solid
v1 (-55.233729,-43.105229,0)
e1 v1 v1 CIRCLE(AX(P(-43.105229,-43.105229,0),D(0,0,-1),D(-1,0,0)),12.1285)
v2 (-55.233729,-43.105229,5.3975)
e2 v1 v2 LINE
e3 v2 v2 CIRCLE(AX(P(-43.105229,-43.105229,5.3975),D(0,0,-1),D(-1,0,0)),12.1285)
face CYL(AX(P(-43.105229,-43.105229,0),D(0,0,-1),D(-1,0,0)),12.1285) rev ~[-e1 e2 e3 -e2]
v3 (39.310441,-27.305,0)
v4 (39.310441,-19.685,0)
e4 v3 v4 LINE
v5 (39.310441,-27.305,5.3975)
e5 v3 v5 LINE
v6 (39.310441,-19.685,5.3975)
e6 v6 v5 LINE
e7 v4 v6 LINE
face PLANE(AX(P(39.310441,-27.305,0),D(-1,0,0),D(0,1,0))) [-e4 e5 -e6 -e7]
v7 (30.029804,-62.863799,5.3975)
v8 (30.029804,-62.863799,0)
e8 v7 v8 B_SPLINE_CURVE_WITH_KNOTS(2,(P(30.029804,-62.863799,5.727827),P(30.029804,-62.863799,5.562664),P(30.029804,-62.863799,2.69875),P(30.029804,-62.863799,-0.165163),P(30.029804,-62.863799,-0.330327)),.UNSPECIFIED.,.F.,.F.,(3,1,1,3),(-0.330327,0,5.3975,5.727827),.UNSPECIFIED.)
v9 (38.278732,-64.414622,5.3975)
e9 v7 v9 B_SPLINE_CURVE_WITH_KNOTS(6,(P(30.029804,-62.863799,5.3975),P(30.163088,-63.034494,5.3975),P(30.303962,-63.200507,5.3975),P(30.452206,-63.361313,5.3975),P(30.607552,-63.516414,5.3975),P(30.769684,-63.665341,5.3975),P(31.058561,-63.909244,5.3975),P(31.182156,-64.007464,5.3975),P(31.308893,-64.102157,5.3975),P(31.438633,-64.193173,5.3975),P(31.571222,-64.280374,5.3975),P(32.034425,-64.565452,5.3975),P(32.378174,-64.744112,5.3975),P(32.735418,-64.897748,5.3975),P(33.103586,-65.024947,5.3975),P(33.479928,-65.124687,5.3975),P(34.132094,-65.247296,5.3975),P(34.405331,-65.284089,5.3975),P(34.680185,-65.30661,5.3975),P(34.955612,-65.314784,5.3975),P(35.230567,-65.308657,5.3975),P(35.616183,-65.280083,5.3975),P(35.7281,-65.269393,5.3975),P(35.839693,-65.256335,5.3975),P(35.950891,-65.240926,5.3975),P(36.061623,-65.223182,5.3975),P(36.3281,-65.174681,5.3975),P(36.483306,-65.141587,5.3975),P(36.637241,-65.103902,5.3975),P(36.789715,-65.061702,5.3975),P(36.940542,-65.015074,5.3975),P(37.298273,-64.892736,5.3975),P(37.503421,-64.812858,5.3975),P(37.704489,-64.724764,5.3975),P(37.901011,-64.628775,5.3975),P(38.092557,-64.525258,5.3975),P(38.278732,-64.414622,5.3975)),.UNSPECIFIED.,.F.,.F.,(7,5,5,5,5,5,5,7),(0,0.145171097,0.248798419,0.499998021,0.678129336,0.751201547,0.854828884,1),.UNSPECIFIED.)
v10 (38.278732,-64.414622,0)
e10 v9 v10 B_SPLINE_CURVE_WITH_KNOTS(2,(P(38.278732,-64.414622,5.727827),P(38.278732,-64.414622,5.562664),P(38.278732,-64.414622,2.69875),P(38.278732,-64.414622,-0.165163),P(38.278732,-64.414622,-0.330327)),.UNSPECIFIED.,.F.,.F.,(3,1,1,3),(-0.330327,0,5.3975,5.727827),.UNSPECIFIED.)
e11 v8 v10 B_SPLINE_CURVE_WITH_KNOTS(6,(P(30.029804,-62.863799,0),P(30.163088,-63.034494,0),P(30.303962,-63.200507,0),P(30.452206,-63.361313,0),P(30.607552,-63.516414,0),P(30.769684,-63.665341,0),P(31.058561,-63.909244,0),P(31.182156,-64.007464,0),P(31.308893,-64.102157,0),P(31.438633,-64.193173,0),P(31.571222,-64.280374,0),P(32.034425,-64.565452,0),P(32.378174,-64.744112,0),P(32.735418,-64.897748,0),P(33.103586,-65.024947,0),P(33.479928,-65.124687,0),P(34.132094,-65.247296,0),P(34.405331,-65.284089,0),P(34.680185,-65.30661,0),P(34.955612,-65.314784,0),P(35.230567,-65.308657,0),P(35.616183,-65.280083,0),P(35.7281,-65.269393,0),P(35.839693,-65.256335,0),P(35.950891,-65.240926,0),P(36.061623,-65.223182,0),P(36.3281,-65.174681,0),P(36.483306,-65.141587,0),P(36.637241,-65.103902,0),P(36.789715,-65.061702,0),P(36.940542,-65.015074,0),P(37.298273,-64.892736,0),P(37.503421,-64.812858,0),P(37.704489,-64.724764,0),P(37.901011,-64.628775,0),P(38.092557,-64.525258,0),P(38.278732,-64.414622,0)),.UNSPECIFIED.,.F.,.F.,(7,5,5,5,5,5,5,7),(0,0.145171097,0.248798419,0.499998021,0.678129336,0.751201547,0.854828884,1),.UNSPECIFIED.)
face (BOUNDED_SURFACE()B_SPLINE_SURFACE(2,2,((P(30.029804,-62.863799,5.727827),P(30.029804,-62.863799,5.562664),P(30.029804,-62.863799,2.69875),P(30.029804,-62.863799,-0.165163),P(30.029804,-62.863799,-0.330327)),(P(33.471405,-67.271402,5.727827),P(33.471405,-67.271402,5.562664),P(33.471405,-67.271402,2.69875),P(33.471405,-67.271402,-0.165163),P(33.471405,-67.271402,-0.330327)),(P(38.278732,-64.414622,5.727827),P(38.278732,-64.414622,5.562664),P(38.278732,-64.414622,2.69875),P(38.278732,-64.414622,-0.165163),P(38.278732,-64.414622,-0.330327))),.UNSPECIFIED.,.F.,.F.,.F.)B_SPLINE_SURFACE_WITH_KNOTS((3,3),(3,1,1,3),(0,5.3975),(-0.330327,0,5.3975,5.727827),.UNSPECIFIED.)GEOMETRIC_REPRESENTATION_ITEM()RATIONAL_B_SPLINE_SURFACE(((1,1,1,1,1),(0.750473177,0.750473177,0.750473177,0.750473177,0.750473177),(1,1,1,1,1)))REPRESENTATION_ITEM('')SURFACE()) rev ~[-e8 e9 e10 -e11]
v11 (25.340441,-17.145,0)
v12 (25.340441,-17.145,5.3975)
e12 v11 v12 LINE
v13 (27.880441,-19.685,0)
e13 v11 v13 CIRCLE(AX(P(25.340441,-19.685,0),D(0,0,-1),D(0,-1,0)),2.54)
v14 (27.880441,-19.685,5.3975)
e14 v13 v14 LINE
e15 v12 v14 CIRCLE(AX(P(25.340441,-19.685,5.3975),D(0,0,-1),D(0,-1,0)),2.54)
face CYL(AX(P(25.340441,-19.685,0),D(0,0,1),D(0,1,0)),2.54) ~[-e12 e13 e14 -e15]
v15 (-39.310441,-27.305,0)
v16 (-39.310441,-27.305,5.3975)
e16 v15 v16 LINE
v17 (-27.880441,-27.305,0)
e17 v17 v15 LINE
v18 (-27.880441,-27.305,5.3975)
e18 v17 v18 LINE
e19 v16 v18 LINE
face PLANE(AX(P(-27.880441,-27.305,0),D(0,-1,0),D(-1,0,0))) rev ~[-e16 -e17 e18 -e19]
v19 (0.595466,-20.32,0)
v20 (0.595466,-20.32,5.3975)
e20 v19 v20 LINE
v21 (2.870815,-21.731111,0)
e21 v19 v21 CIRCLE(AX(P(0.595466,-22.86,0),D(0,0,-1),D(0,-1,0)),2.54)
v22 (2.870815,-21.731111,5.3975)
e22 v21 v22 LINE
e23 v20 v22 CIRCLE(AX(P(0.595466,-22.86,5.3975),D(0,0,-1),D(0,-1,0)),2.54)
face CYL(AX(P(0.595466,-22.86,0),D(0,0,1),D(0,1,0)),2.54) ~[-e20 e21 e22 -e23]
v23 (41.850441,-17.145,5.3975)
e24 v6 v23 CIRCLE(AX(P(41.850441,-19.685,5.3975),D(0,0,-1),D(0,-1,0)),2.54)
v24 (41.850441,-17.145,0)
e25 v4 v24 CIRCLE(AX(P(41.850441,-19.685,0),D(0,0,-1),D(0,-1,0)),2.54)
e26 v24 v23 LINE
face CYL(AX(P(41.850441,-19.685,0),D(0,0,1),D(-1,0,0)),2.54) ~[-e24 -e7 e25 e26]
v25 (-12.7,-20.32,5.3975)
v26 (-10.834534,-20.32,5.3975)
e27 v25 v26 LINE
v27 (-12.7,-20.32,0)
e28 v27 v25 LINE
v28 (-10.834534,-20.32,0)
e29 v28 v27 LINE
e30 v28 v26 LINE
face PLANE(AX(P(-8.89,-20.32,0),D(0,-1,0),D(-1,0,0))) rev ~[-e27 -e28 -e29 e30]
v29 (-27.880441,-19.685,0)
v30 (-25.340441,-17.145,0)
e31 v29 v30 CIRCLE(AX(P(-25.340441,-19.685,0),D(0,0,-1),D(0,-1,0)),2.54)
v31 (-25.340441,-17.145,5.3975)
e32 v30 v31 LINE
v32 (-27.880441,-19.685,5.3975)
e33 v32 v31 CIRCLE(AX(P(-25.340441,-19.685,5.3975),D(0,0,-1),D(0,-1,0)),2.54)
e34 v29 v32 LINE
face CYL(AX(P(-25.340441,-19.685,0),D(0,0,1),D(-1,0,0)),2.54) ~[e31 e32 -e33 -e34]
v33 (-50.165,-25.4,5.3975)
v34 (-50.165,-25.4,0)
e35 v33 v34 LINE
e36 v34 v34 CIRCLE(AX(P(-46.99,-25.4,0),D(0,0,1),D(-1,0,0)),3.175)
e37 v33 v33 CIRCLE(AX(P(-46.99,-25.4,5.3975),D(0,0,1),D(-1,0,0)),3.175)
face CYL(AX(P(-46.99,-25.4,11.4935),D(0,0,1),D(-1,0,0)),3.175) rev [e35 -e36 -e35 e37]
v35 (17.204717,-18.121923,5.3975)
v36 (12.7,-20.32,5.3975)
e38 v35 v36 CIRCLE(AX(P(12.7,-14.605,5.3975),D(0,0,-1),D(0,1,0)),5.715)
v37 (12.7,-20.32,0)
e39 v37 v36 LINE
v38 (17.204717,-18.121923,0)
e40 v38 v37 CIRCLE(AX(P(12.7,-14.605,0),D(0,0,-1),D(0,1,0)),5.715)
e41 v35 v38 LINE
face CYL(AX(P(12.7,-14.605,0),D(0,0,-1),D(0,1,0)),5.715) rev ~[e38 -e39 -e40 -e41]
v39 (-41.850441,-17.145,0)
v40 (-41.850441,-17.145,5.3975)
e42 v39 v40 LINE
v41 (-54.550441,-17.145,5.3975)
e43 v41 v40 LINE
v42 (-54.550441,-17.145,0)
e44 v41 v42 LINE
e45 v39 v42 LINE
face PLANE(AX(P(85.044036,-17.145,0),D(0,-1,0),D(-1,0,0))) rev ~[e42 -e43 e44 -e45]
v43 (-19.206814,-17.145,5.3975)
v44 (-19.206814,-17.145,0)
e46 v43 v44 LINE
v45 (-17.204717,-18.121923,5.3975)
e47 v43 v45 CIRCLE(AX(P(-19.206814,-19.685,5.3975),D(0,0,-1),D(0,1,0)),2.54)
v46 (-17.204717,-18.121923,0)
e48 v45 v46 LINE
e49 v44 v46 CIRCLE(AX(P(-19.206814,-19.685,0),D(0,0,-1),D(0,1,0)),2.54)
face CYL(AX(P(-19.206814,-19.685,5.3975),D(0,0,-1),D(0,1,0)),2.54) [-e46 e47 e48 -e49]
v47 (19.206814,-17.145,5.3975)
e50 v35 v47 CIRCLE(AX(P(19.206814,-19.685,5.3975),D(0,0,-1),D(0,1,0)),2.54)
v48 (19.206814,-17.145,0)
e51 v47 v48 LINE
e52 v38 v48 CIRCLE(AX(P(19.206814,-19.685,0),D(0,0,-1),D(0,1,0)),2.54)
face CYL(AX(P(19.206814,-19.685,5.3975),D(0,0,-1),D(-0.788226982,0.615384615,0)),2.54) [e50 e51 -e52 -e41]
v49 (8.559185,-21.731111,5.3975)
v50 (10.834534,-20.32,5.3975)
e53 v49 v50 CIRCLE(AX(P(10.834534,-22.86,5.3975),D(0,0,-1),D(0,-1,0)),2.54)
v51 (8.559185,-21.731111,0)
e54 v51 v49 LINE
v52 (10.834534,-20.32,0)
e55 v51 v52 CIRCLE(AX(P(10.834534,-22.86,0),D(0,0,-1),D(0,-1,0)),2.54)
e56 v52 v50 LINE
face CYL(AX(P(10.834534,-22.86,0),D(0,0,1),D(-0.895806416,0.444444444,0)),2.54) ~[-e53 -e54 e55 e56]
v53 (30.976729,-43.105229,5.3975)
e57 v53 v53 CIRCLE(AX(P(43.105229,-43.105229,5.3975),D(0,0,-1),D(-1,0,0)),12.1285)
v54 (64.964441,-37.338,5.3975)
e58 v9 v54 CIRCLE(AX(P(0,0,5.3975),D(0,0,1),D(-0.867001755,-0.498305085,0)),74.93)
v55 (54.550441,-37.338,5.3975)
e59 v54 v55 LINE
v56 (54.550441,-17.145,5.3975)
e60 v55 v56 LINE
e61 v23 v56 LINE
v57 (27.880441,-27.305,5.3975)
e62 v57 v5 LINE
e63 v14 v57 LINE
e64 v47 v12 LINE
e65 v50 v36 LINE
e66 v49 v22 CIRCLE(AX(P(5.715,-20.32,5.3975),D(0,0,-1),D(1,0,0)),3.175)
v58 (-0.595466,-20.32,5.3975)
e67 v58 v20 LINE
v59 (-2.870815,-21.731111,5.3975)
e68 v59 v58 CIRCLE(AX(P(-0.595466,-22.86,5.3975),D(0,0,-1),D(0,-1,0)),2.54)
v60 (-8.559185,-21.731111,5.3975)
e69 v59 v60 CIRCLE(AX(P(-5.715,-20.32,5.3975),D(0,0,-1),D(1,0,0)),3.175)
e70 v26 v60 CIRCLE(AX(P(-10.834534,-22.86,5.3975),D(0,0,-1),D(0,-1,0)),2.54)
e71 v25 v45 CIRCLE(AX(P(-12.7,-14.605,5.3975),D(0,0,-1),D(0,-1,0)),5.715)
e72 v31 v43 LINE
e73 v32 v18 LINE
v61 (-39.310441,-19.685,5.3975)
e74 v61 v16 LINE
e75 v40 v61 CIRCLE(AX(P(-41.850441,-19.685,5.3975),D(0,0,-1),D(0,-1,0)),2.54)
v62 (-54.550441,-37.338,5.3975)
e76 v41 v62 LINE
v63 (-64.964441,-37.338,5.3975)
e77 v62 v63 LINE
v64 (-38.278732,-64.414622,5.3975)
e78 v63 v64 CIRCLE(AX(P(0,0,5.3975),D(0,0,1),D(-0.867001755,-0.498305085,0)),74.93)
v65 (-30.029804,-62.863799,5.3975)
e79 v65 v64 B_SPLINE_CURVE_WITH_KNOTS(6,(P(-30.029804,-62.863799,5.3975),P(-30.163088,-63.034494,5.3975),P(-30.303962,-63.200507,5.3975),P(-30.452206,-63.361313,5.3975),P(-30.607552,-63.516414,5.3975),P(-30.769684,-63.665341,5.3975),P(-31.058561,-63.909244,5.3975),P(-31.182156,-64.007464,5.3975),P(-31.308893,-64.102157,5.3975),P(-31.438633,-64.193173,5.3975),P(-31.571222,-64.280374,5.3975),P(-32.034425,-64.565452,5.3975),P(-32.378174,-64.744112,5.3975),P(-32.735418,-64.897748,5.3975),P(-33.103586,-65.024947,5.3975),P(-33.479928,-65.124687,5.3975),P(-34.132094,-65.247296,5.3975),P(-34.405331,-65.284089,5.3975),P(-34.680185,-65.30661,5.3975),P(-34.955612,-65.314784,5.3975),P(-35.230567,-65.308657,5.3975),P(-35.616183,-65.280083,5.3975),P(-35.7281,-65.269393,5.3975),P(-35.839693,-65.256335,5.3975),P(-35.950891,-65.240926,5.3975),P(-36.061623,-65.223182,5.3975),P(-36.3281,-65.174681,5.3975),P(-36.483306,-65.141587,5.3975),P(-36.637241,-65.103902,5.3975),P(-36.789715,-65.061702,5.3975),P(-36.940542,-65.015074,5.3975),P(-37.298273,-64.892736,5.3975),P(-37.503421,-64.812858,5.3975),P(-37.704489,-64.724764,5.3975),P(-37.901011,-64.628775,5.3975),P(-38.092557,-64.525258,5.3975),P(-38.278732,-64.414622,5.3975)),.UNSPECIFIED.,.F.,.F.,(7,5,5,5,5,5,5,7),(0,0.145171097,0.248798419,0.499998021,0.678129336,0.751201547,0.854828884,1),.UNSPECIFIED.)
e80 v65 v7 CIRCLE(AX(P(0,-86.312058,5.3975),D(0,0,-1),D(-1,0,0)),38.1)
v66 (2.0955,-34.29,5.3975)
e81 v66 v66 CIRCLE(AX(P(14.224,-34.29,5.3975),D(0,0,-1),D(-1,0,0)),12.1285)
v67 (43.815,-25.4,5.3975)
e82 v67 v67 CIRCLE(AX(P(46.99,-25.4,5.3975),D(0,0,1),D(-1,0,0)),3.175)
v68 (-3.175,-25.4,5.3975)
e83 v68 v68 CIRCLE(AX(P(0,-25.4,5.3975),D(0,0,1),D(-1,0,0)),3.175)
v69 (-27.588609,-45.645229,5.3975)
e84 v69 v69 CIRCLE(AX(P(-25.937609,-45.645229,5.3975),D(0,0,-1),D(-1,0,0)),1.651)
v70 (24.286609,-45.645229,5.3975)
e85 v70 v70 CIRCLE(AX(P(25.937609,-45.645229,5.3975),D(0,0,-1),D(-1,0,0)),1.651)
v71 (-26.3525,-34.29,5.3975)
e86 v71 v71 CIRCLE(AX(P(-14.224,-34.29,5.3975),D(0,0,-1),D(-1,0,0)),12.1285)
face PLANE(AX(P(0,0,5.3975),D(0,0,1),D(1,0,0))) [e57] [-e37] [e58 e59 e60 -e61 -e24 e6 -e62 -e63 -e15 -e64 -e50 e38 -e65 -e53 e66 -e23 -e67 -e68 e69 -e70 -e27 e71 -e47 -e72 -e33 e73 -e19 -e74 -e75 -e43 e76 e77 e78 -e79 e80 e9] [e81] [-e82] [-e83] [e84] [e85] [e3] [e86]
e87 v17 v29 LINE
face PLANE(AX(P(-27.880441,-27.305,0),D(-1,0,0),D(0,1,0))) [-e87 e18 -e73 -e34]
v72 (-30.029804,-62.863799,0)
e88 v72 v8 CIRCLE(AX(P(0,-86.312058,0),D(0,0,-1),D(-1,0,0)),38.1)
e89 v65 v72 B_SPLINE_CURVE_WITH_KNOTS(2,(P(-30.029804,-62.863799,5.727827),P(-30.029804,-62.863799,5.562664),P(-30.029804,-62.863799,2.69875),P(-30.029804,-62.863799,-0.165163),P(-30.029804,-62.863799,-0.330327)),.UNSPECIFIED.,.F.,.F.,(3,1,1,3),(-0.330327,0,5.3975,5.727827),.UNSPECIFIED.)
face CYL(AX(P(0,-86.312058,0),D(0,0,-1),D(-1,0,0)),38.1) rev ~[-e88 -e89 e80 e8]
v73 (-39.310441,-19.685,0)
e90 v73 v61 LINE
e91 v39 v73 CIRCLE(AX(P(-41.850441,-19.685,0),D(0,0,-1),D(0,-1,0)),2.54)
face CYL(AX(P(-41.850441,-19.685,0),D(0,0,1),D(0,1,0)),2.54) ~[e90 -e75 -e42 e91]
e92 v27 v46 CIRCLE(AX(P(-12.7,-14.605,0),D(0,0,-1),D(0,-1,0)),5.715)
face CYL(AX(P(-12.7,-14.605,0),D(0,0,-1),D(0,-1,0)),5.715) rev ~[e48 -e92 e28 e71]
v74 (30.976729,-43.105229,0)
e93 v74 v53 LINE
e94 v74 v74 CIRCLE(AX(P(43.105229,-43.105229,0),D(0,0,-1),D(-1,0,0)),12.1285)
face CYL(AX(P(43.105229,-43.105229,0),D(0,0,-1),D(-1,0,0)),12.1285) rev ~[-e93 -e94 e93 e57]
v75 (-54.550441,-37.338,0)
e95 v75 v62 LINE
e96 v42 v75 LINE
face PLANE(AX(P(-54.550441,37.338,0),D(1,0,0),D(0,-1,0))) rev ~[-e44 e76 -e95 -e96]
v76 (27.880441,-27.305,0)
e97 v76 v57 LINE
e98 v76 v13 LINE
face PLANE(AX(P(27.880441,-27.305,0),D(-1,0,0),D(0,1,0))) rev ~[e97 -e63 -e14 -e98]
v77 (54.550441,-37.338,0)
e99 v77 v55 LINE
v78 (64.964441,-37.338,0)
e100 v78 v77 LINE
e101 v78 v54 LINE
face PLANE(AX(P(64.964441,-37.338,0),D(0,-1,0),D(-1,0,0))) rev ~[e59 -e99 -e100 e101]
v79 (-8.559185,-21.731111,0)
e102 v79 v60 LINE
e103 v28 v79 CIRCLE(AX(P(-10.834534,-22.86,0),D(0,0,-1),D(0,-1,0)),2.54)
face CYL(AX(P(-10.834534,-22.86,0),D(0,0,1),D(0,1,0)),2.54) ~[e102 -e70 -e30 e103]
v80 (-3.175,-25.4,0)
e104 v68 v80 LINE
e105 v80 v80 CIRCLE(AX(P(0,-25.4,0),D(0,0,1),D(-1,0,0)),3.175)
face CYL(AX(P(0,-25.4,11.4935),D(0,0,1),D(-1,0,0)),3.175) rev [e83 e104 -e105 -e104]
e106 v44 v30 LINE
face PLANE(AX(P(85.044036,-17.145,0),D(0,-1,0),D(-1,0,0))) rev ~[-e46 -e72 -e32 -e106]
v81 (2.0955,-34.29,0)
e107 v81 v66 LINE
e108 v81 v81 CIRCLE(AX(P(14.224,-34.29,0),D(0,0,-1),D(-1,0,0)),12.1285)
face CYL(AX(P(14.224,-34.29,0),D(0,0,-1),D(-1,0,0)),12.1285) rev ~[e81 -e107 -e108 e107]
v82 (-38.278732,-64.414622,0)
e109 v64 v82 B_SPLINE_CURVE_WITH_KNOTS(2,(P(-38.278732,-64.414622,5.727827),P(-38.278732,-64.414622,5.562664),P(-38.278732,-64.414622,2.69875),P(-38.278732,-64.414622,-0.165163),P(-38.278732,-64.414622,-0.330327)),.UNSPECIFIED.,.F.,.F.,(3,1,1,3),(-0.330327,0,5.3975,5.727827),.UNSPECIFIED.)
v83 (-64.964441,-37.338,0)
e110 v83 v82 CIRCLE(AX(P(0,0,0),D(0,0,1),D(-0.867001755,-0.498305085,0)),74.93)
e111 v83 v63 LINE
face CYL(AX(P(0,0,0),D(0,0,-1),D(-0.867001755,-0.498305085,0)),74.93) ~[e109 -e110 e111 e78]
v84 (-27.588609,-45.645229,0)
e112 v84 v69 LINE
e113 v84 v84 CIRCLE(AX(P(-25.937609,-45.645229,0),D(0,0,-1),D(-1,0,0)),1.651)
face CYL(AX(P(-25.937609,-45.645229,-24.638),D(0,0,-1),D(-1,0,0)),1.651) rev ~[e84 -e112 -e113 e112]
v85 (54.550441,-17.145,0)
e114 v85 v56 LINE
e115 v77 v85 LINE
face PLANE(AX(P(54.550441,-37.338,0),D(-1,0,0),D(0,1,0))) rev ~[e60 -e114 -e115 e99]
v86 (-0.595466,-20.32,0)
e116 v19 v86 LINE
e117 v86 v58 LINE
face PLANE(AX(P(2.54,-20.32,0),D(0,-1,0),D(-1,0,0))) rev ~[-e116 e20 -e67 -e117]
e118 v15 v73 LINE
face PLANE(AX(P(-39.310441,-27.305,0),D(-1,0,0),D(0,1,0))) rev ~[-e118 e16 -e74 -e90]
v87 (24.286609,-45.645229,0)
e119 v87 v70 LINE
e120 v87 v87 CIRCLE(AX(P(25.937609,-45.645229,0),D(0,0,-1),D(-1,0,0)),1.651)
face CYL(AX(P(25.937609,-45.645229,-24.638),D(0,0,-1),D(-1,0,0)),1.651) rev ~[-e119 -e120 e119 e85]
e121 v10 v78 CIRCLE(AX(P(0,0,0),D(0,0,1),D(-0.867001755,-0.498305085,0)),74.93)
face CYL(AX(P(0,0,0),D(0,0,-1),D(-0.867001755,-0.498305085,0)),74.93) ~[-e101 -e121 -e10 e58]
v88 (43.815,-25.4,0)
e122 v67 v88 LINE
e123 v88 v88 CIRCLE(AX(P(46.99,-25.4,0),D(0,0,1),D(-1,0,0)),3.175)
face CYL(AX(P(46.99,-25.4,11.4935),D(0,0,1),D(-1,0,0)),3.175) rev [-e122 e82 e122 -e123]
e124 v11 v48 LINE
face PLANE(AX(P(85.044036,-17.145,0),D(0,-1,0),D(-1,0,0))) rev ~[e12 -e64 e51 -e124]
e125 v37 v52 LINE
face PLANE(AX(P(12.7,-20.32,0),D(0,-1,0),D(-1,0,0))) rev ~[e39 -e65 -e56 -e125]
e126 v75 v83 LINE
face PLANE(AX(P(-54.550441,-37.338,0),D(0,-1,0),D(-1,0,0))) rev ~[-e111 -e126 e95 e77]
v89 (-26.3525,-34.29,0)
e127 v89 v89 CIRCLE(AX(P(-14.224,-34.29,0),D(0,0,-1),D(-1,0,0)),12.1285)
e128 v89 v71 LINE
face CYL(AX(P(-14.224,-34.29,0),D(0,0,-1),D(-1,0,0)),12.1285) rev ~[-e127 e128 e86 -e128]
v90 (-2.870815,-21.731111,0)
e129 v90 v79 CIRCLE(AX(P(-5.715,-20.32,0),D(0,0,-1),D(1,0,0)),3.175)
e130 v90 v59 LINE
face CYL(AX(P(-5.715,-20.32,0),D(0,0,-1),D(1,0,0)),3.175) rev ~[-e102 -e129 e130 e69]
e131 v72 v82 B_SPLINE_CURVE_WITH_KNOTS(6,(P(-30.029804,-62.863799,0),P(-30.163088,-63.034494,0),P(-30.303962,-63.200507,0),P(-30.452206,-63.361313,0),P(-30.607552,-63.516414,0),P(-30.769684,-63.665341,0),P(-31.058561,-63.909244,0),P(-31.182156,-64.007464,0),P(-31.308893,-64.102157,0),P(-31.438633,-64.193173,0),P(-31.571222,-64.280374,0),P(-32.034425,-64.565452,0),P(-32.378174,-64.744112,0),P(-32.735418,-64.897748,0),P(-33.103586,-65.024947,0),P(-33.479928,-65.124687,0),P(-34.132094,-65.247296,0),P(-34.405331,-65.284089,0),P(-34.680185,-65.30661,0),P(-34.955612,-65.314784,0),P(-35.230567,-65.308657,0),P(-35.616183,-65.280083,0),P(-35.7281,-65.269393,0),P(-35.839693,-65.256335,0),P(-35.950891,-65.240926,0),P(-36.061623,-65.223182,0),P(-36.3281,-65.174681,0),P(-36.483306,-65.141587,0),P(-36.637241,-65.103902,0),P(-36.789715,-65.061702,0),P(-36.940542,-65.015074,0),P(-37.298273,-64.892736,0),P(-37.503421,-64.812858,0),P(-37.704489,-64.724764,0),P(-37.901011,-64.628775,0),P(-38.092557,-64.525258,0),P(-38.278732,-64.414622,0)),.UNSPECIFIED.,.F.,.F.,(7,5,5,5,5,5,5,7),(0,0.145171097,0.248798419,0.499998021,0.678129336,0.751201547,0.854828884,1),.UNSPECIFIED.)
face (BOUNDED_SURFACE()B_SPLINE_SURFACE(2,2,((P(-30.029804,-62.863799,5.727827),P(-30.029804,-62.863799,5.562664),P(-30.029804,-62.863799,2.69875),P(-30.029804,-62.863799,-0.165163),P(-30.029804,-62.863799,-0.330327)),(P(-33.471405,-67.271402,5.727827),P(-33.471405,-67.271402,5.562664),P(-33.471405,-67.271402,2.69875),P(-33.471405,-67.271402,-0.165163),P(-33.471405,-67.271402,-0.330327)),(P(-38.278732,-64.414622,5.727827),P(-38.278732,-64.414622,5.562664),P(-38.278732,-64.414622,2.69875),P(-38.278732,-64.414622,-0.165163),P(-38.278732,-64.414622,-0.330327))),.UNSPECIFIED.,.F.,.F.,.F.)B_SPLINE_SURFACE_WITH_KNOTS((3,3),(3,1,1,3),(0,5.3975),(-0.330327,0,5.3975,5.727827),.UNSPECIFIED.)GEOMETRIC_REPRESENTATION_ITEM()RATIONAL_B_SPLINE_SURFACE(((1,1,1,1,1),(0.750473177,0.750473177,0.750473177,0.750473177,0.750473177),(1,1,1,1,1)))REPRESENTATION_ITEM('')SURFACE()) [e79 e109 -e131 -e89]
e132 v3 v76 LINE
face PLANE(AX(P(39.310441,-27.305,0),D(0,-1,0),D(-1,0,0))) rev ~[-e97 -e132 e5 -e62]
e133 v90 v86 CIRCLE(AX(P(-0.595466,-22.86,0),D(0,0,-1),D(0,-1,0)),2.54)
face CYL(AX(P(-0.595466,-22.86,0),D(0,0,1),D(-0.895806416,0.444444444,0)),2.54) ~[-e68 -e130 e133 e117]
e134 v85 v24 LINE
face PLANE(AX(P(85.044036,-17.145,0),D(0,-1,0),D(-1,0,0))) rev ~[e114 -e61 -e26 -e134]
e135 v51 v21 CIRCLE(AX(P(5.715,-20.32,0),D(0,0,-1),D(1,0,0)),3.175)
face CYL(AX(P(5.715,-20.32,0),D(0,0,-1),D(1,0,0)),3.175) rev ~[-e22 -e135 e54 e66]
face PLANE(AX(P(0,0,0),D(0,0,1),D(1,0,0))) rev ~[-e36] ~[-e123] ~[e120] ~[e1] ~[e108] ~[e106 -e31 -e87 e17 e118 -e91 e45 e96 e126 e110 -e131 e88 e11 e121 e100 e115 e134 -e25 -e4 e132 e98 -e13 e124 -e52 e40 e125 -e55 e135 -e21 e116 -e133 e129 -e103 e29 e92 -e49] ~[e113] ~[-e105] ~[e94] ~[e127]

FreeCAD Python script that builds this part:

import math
import FreeCAD as App
import Part
import Sketcher
from FreeCAD import Vector
Q = App.Units.Quantity


def edges_at(feature, points):
    """Names of the edges that pass closest to the given points."""
    edges = feature.Shape.Edges
    near = lambda p: min(range(len(edges)), key=lambda i: edges[i].distToShape(Part.Vertex(*p))[0])
    return sorted({f"Edge{near(p) + 1}" for p in points})

doc = App.newDocument("Part")
body = doc.addObject("PartDesign::Body", "Body")

sketch1 = doc.addObject("Sketcher::SketchObject", "Sketch")
body.addObject(sketch1)
sketch1.AttachmentSupport = (doc.XY_Plane, [""])
sketch1.MapMode = "FlatFace"
sketch1.addGeometry(Part.LineSegment(Vector(-65, 37.3, 0), Vector(-54.6, 37.3, 0)), False)
sketch1.addGeometry(Part.LineSegment(Vector(-54.6, 37.3, 0), Vector(-54.6, -37.3, 0)), False)
sketch1.addGeometry(Part.LineSegment(Vector(-54.6, -37.3, 0), Vector(-65, -37.3, 0)), False)
sketch1.addGeometry(Part.ArcOfCircle(Part.Circle(Vector(0, 0, 0), Vector(0, 0, 1), 74.9), math.radians(-150), math.radians(-30)), False)
sketch1.addGeometry(Part.LineSegment(Vector(65, -37.3, 0), Vector(54.6, -37.3, 0)), False)
sketch1.addGeometry(Part.LineSegment(Vector(54.6, -37.3, 0), Vector(54.6, 37.3, 0)), False)
sketch1.addGeometry(Part.LineSegment(Vector(54.6, 37.3, 0), Vector(65, 37.3, 0)), False)
sketch1.addGeometry(Part.ArcOfCircle(Part.Circle(Vector(0, 0, 0), Vector(0, 0, 1), 74.9), math.radians(30), math.radians(150)), False)
sketch1.addGeometry(Part.Circle(Vector(-46.5, -11, 0), Vector(0, 0, 1), 1.7), False)
sketch1.addGeometry(Part.Circle(Vector(-21.1, -10.8, 0), Vector(0, 0, 1), 1.7), False)
sketch1.addGeometry(Part.Circle(Vector(21.1, -10.8, 0), Vector(0, 0, 1), 1.7), False)
sketch1.addGeometry(Part.Circle(Vector(46.5, -11, 0), Vector(0, 0, 1), 1.7), False)
sketch1.addGeometry(Part.Circle(Vector(-46.5, 11, 0), Vector(0, 0, 1), 1.7), False)
sketch1.addGeometry(Part.Circle(Vector(-21.1, 10.8, 0), Vector(0, 0, 1), 1.7), False)
sketch1.addGeometry(Part.Circle(Vector(21.1, 10.8, 0), Vector(0, 0, 1), 1.7), False)
sketch1.addGeometry(Part.Circle(Vector(46.5, 11, 0), Vector(0, 0, 1), 1.7), False)
sketch1.addConstraint(Sketcher.Constraint("Coincident", 0, 2, 1, 1))
sketch1.addConstraint(Sketcher.Constraint("Coincident", 1, 2, 2, 1))
sketch1.addConstraint(Sketcher.Constraint("Coincident", 2, 2, 3, 1))
sketch1.addConstraint(Sketcher.Constraint("Coincident", 3, 2, 4, 1))
sketch1.addConstraint(Sketcher.Constraint("Coincident", 4, 2, 5, 1))
sketch1.addConstraint(Sketcher.Constraint("Coincident", 5, 2, 6, 1))
sketch1.addConstraint(Sketcher.Constraint("Coincident", 6, 2, 7, 1))
sketch1.addConstraint(Sketcher.Constraint("Coincident", 7, 2, 0, 1))
sketch1.addConstraint(Sketcher.Constraint("Horizontal", 0))
sketch1.addConstraint(Sketcher.Constraint("Vertical", 1))
sketch1.addConstraint(Sketcher.Constraint("Horizontal", 2))
sketch1.addConstraint(Sketcher.Constraint("Horizontal", 4))
sketch1.addConstraint(Sketcher.Constraint("Vertical", 5))
sketch1.addConstraint(Sketcher.Constraint("Horizontal", 6))
sketch1.addConstraint(Sketcher.Constraint("Coincident", 3, 3, -1, 1))
sketch1.addConstraint(Sketcher.Constraint("Coincident", 7, 3, -1, 1))
sketch1.addConstraint(Sketcher.Constraint("Equal", 3, 7))
sketch1.addConstraint(Sketcher.Constraint("Equal", 8, 9))
sketch1.addConstraint(Sketcher.Constraint("Equal", 9, 10))
sketch1.addConstraint(Sketcher.Constraint("Equal", 10, 11))
sketch1.addConstraint(Sketcher.Constraint("Equal", 11, 12))
sketch1.addConstraint(Sketcher.Constraint("Equal", 12, 13))
sketch1.addConstraint(Sketcher.Constraint("Equal", 13, 14))
sketch1.addConstraint(Sketcher.Constraint("Equal", 14, 15))
sketch1.addConstraint(Sketcher.Constraint("Symmetric", 11, 3, 12, 3, -1, 1))
sketch1.addConstraint(Sketcher.Constraint("Symmetric", 10, 3, 13, 3, -1, 1))
sketch1.addConstraint(Sketcher.Constraint("Symmetric", 9, 3, 14, 3, -1, 1))
sketch1.addConstraint(Sketcher.Constraint("Symmetric", 8, 3, 15, 3, -1, 1))
sketch1.addConstraint(Sketcher.Constraint("Symmetric", 0, 2, 4, 2, -1, 1))
sketch1.addConstraint(Sketcher.Constraint("Symmetric", 9, 3, 10, 3, -2))
sketch1.addConstraint(Sketcher.Constraint("Symmetric", 8, 3, 11, 3, -2))
sketch1.addConstraint(Sketcher.Constraint("Horizontal", 2, 2, 3, 2))
sketch1.addConstraint(Sketcher.Constraint("Horizontal", 0, 2, 5, 2))
sketch1.addConstraint(Sketcher.Constraint("Diameter", 8, Q("0.13 in")))
sketch1.addConstraint(Sketcher.Constraint("Radius", 3, Q("2.95 in")))
sketch1.addConstraint(Sketcher.Constraint("DistanceX", 0, 1, 0, 2, Q("0.41 in")))
sketch1.addConstraint(Sketcher.Constraint("DistanceY", 1, 2, 1, 1, Q("2.94 in")))
sketch1.addConstraint(Sketcher.Constraint("DistanceX", 8, 3, -1, 1, Q("1.83 in")))
sketch1.addConstraint(Sketcher.Constraint("DistanceY", 8, 3, 9, 3, Q("0.01 in")))
sketch1.addConstraint(Sketcher.Constraint("DistanceY", 8, 3, 12, 3, Q("0.87 in")))
sketch1.addConstraint(Sketcher.Constraint("DistanceX", 9, 3, 10, 3, Q("1.6601 in")))
pad1 = doc.addObject("PartDesign::Pad", "Pad")
body.addObject(pad1)
pad1.Profile = sketch1
pad1.Length = Q("0.2125 in")

sketch2 = doc.addObject("Sketcher::SketchObject", "Sketch001")
body.addObject(sketch2)
sketch2.AttachmentSupport = (doc.XY_Plane, [""])
sketch2.MapMode = "FlatFace"
sketch2.AttachmentOffset = App.Placement(Vector(0, 0, 0.2125 * 25.4), App.Rotation())
sketch2.addGeometry(Part.Circle(Vector(-6.7, 62.2, 0), Vector(0, 0, 1), 1.1), False)
sketch2.addGeometry(Part.Circle(Vector(6.7, 62.2, 0), Vector(0, 0, 1), 1.1), False)
sketch2.addConstraint(Sketcher.Constraint("Equal", 0, 1))
sketch2.addConstraint(Sketcher.Constraint("Symmetric", 0, 3, 1, 3, -2))
sketch2.addConstraint(Sketcher.Constraint("Diameter", 0, Q("0.09 in")))
sketch2.addConstraint(Sketcher.Constraint("DistanceY", -1, 1, 0, 3, Q("2.45 in")))
sketch2.addConstraint(Sketcher.Constraint("DistanceX", 0, 3, 1, 3, Q("0.53 in")))
pocket1 = doc.addObject("PartDesign::Pocket", "Pocket")
body.addObject(pocket1)
pocket1.Profile = sketch2
pocket1.Type = "ThroughAll"

sketch3 = doc.addObject("Sketcher::SketchObject", "Sketch002")
body.addObject(sketch3)
sketch3.AttachmentSupport = (doc.XY_Plane, [""])
sketch3.MapMode = "FlatFace"
sketch3.addGeometry(Part.Circle(Vector(43, -43, 0), Vector(0, 0, 1), 12), False)
sketch3.addGeometry(Part.Circle(Vector(-14, -34, 0), Vector(0, 0, 1), 12), False)
sketch3.addGeometry(Part.Circle(Vector(-14, 34, 0), Vector(0, 0, 1), 12), False)
sketch3.addGeometry(Part.Circle(Vector(43, 43, 0), Vector(0, 0, 1), 12), False)
sketch3.addGeometry(Part.Circle(Vector(-43, 43, 0), Vector(0, 0, 1), 12), False)
sketch3.addGeometry(Part.Circle(Vector(14, 34, 0), Vector(0, 0, 1), 12), False)
sketch3.addGeometry(Part.Circle(Vector(14, -34, 0), Vector(0, 0, 1), 12), False)
sketch3.addGeometry(Part.Circle(Vector(-43, -43, 0), Vector(0, 0, 1), 12), False)
sketch3.addConstraint(Sketcher.Constraint("Equal", 0, 1))
sketch3.addConstraint(Sketcher.Constraint("Equal", 1, 2))
sketch3.addConstraint(Sketcher.Constraint("Equal", 2, 3))
sketch3.addConstraint(Sketcher.Constraint("Equal", 3, 4))
sketch3.addConstraint(Sketcher.Constraint("Equal", 4, 5))
sketch3.addConstraint(Sketcher.Constraint("Equal", 5, 6))
sketch3.addConstraint(Sketcher.Constraint("Equal", 6, 7))
sketch3.addConstraint(Sketcher.Constraint("Symmetric", 0, 3, 4, 3, -1, 1))
sketch3.addConstraint(Sketcher.Constraint("Symmetric", 1, 3, 5, 3, -1, 1))
sketch3.addConstraint(Sketcher.Constraint("Symmetric", 2, 3, 6, 3, -1, 1))
sketch3.addConstraint(Sketcher.Constraint("Symmetric", 3, 3, 7, 3, -1, 1))
sketch3.addConstraint(Sketcher.Constraint("Symmetric", 3, 3, 4, 3, -2))
sketch3.addConstraint(Sketcher.Constraint("Symmetric", 2, 3, 5, 3, -2))
sketch3.addConstraint(Sketcher.Constraint("Diameter", 0, Q("0.955 in")))
sketch3.addConstraint(Sketcher.Constraint("DistanceY", 1, 3, 2, 3, Q("2.7 in")))
sketch3.addConstraint(Sketcher.Constraint("DistanceX", 1, 3, -1, 1, Q("0.56 in")))
sketch3.addConstraint(Sketcher.Constraint("DistanceX", -1, 1, 0, 3, 43.105229))
sketch3.addConstraint(Sketcher.Constraint("DistanceY", 0, 3, -1, 1, 43.105229))
pocket2 = doc.addObject("PartDesign::Pocket", "Pocket001")
body.addObject(pocket2)
pocket2.Profile = sketch3
pocket2.Type = "ThroughAll"
pocket2.Reversed = True

sketch4 = doc.addObject("Sketcher::SketchObject", "Sketch003")
body.addObject(sketch4)
sketch4.AttachmentSupport = (doc.XY_Plane, [""])
sketch4.MapMode = "FlatFace"
sketch4.addGeometry(Part.LineSegment(Vector(16, 68, 0), Vector(16, 56, 0)), False)
sketch4.addGeometry(Part.LineSegment(Vector(16, 56, 0), Vector(-13, 56, 0)), False)
sketch4.addGeometry(Part.LineSegment(Vector(-13, 56, 0), Vector(-13, 68, 0)), False)
sketch4.addGeometry(Part.LineSegment(Vector(-13, 68, 0), Vector(16, 68, 0)), False)
sketch4.addConstraint(Sketcher.Constraint("Coincident", 0, 2, 1, 1))
sketch4.addConstraint(Sketcher.Constraint("Coincident", 1, 2, 2, 1))
sketch4.addConstraint(Sketcher.Constraint("Coincident", 2, 2, 3, 1))
sketch4.addConstraint(Sketcher.Constraint("Coincident", 3, 2, 0, 1))
sketch4.addConstraint(Sketcher.Constraint("Vertical", 0))
sketch4.addConstraint(Sketcher.Constraint("Horizontal", 1))
sketch4.addConstraint(Sketcher.Constraint("Vertical", 2))
sketch4.addConstraint(Sketcher.Constraint("Horizontal", 3))
sketch4.addConstraint(Sketcher.Constraint("DistanceX", 1, 2, 1, 1, 28.562713))
sketch4.addConstraint(Sketcher.Constraint("DistanceY", 0, 2, 0, 1, 11.677504))
sketch4.addConstraint(Sketcher.Constraint("DistanceY", -1, 1, 0, 2, 56.313788))
sketch4.addConstraint(Sketcher.Constraint("DistanceX", -1, 1, 0, 2, 15.770167))
pad2 = doc.addObject("PartDesign::Pad", "Pad001")
body.addObject(pad2)
pad2.Profile = sketch4
pad2.Length = Q("0.2125 in")

sketch5 = doc.addObject("Sketcher::SketchObject", "Sketch004")
body.addObject(sketch5)
sketch5.AttachmentSupport = (doc.XY_Plane, [""])
sketch5.MapMode = "FlatFace"
sketch5.addGeometry(Part.LineSegment(Vector(85, 113, 0), Vector(85, -17, 0)), False)
sketch5.addGeometry(Part.LineSegment(Vector(85, -17, 0), Vector(-132, -17, 0)), False)
sketch5.addGeometry(Part.LineSegment(Vector(-132, -17, 0), Vector(-132, 113, 0)), False)
sketch5.addGeometry(Part.LineSegment(Vector(-132, 113, 0), Vector(85, 113, 0)), False)
sketch5.addConstraint(Sketcher.Constraint("Coincident", 0, 2, 1, 1))
sketch5.addConstraint(Sketcher.Constraint("Coincident", 1, 2, 2, 1))
sketch5.addConstraint(Sketcher.Constraint("Coincident", 2, 2, 3, 1))
sketch5.addConstraint(Sketcher.Constraint("Coincident", 3, 2, 0, 1))
sketch5.addConstraint(Sketcher.Constraint("Vertical", 0))
sketch5.addConstraint(Sketcher.Constraint("Horizontal", 1))
sketch5.addConstraint(Sketcher.Constraint("Vertical", 2))
sketch5.addConstraint(Sketcher.Constraint("Horizontal", 3))
sketch5.addConstraint(Sketcher.Constraint("DistanceY", 0, 2, -1, 1, Q("0.675 in")))
sketch5.addConstraint(Sketcher.Constraint("DistanceX", 1, 2, 1, 1, 216.721449))
sketch5.addConstraint(Sketcher.Constraint("DistanceY", 0, 2, 0, 1, 130.569221))
sketch5.addConstraint(Sketcher.Constraint("DistanceX", -1, 1, 0, 2, 85.044036))
pocket3 = doc.addObject("PartDesign::Pocket", "Pocket002")
body.addObject(pocket3)
pocket3.Profile = sketch5
pocket3.Type = "ThroughAll"
pocket3.Reversed = True

sketch6 = doc.addObject("Sketcher::SketchObject", "Sketch005")
body.addObject(sketch6)
sketch6.AttachmentSupport = (doc.XY_Plane, [""])
sketch6.MapMode = "FlatFace"
sketch6.addGeometry(Part.Circle(Vector(0, -86, 0), Vector(0, 0, 1), 38), False)
sketch6.addConstraint(Sketcher.Constraint("PointOnObject", 0, 3, -2))
sketch6.addConstraint(Sketcher.Constraint("Diameter", 0, Q("3 in")))
sketch6.addConstraint(Sketcher.Constraint("DistanceY", 0, 3, -1, 1, 86.312058))
pocket4 = doc.addObject("PartDesign::Pocket", "Pocket003")
body.addObject(pocket4)
pocket4.Profile = sketch6
pocket4.Length = Q("2.4 in")
pocket4.Reversed = True
doc.recompute()

fillet = doc.addObject("PartDesign::Fillet", "Fillet")
body.addObject(fillet)
fillet.Base = (pocket4, edges_at(pocket4, [(-33.001, -67.271, 2.699)]))
fillet.Radius = Q("0.25 in")
doc.recompute()

fillet2 = doc.addObject("PartDesign::Fillet", "Fillet001")
body.addObject(fillet2)
fillet2.Base = (fillet, edges_at(fillet, [(33.001, -67.271, 2.699)]))
fillet2.Radius = Q("0.25 in")

sketch7 = doc.addObject("Sketcher::SketchObject", "Sketch006")
body.addObject(sketch7)
sketch7.AttachmentSupport = (doc.XY_Plane, [""])
sketch7.MapMode = "FlatFace"
sketch7.addGeometry(Part.LineSegment(Vector(39, -17, 0), Vector(39, -27, 0)), False)
sketch7.addGeometry(Part.LineSegment(Vector(39, -27, 0), Vector(28, -27, 0)), False)
sketch7.addGeometry(Part.LineSegment(Vector(28, -27, 0), Vector(28, -17, 0)), False)
sketch7.addGeometry(Part.LineSegment(Vector(28, -17, 0), Vector(39, -17, 0)), False)
sketch7.addGeometry(Part.LineSegment(Vector(-28, -17, 0), Vector(-28, -27, 0)), False)
sketch7.addGeometry(Part.LineSegment(Vector(-28, -27, 0), Vector(-39, -27, 0)), False)
sketch7.addGeometry(Part.LineSegment(Vector(-39, -27, 0), Vector(-39, -17, 0)), False)
sketch7.addGeometry(Part.LineSegment(Vector(-39, -17, 0), Vector(-28, -17, 0)), False)
sketch7.addConstraint(Sketcher.Constraint("Coincident", 0, 2, 1, 1))
sketch7.addConstraint(Sketcher.Constraint("Coincident", 1, 2, 2, 1))
sketch7.addConstraint(Sketcher.Constraint("Coincident", 2, 2, 3, 1))
sketch7.addConstraint(Sketcher.Constraint("Coincident", 3, 2, 0, 1))
sketch7.addConstraint(Sketcher.Constraint("Coincident", 4, 2, 5, 1))
sketch7.addConstraint(Sketcher.Constraint("Coincident", 5, 2, 6, 1))
sketch7.addConstraint(Sketcher.Constraint("Coincident", 6, 2, 7, 1))
sketch7.addConstraint(Sketcher.Constraint("Coincident", 7, 2, 4, 1))
sketch7.addConstraint(Sketcher.Constraint("Vertical", 0))
sketch7.addConstraint(Sketcher.Constraint("Horizontal", 1))
sketch7.addConstraint(Sketcher.Constraint("Vertical", 2))
sketch7.addConstraint(Sketcher.Constraint("Horizontal", 3))
sketch7.addConstraint(Sketcher.Constraint("Vertical", 4))
sketch7.addConstraint(Sketcher.Constraint("Horizontal", 5))
sketch7.addConstraint(Sketcher.Constraint("Vertical", 6))
sketch7.addConstraint(Sketcher.Constraint("Horizontal", 7))
sketch7.addConstraint(Sketcher.Constraint("Symmetric", 1, 2, 4, 2, -2))
sketch7.addConstraint(Sketcher.Constraint("Symmetric", 3, 2, 6, 2, -2))
sketch7.addConstraint(Sketcher.Constraint("DistanceY", 0, 2, 0, 1, Q("0.4 in")))
sketch7.addConstraint(Sketcher.Constraint("DistanceX", 1, 2, 1, 1, Q("0.45 in")))
sketch7.addConstraint(Sketcher.Constraint("DistanceY", 0, 2, -1, 1, Q("1.075 in")))
sketch7.addConstraint(Sketcher.Constraint("DistanceX", -1, 1, 0, 2, 39.310441))
pocket5 = doc.addObject("PartDesign::Pocket", "Pocket004")
body.addObject(pocket5)
pocket5.Profile = sketch7
pocket5.Type = "ThroughAll"
pocket5.Reversed = True

sketch8 = doc.addObject("Sketcher::SketchObject", "Sketch007")
body.addObject(sketch8)
sketch8.AttachmentSupport = (doc.XY_Plane, [""])
sketch8.MapMode = "FlatFace"
sketch8.AttachmentOffset = App.Placement(Vector(0, 0, -0.97 * 25.4), App.Rotation())
sketch8.addGeometry(Part.Circle(Vector(25.9, -45.6, 0), Vector(0, 0, 1), 1.7), False)
sketch8.addGeometry(Part.Circle(Vector(-25.9, -45.6, 0), Vector(0, 0, 1), 1.7), False)
sketch8.addConstraint(Sketcher.Constraint("Equal", 0, 1))
sketch8.addConstraint(Sketcher.Constraint("Symmetric", 0, 3, 1, 3, -2))
sketch8.addConstraint(Sketcher.Constraint("Diameter", 0, Q("0.13 in")))
sketch8.addConstraint(Sketcher.Constraint("DistanceX", -1, 1, 0, 3, 25.937609))
sketch8.addConstraint(Sketcher.Constraint("DistanceY", 0, 3, -1, 1, 45.645229))
pocket6 = doc.addObject("PartDesign::Pocket", "Pocket005")
body.addObject(pocket6)
pocket6.Profile = sketch8
pocket6.Length = Q("3.85 in")
pocket6.Reversed = True

sketch9 = doc.addObject("Sketcher::SketchObject", "Sketch008")
body.addObject(sketch9)
sketch9.AttachmentSupport = (doc.XY_Plane, [""])
sketch9.MapMode = "FlatFace"
sketch9.AttachmentOffset = App.Placement(Vector(0, 0, 0.4525 * 25.4), App.Rotation())
sketch9.addGeometry(Part.Circle(Vector(-47, -25.4, 0), Vector(0, 0, 1), 3.2), False)
sketch9.addGeometry(Part.Circle(Vector(0, -25.4, 0), Vector(0, 0, 1), 3.2), False)
sketch9.addGeometry(Part.Circle(Vector(47, -25.4, 0), Vector(0, 0, 1), 3.2), False)
sketch9.addConstraint(Sketcher.Constraint("Equal", 0, 1))
sketch9.addConstraint(Sketcher.Constraint("Equal", 1, 2))
sketch9.addConstraint(Sketcher.Constraint("Symmetric", 0, 3, 2, 3, -2))
sketch9.addConstraint(Sketcher.Constraint("PointOnObject", 1, 3, -2))
sketch9.addConstraint(Sketcher.Constraint("Horizontal", 0, 3, 1, 3))
sketch9.addConstraint(Sketcher.Constraint("Diameter", 0, Q("0.25 in")))
sketch9.addConstraint(Sketcher.Constraint("DistanceY", 0, 3, -1, 1, Q("1 in")))
sketch9.addConstraint(Sketcher.Constraint("DistanceX", 0, 3, 2, 3, Q("3.7 in")))
pocket7 = doc.addObject("PartDesign::Pocket", "Pocket006")
body.addObject(pocket7)
pocket7.Profile = sketch9
pocket7.Type = "ThroughAll"
pocket7.Midplane = True

sketch10 = doc.addObject("Sketcher::SketchObject", "Sketch009")
body.addObject(sketch10)
sketch10.AttachmentSupport = (doc.XY_Plane, [""])
sketch10.MapMode = "FlatFace"
sketch10.addGeometry(Part.LineSegment(Vector(12.7, -20.3, 0), Vector(8.9, -20.3, 0)), False)
sketch10.addGeometry(Part.ArcOfCircle(Part.Circle(Vector(5.7, -20.3, 0), Vector(0, 0, 1), 3.2), math.radians(180), math.radians(360)), False)
sketch10.addGeometry(Part.LineSegment(Vector(2.5, -20.3, 0), Vector(-2.5, -20.3, 0)), False)
sketch10.addGeometry(Part.ArcOfCircle(Part.Circle(Vector(-5.7, -20.3, 0), Vector(0, 0, 1), 3.2), math.radians(180), math.radians(360)), False)
sketch10.addGeometry(Part.LineSegment(Vector(-8.9, -20.3, 0), Vector(-12.7, -20.3, 0)), False)
sketch10.addGeometry(Part.ArcOfCircle(Part.Circle(Vector(-12.7, -14.6, 0), Vector(0, 0, 1), 5.7), math.radians(90), math.radians(270)), False)
sketch10.addGeometry(Part.LineSegment(Vector(-12.7, -8.9, 0), Vector(12.7, -8.9, 0)), False)
sketch10.addGeometry(Part.ArcOfCircle(Part.Circle(Vector(12.7, -14.6, 0), Vector(0, 0, 1), 5.7), math.radians(-90), math.radians(90)), False)
sketch10.addConstraint(Sketcher.Constraint("Coincident", 0, 2, 1, 2))
sketch10.addConstraint(Sketcher.Constraint("Coincident", 1, 1, 2, 1))
sketch10.addConstraint(Sketcher.Constraint("Coincident", 2, 2, 3, 2))
sketch10.addConstraint(Sketcher.Constraint("Coincident", 3, 1, 4, 1))
sketch10.addConstraint(Sketcher.Constraint("Tangent", 4, 2, 5, 2))
sketch10.addConstraint(Sketcher.Constraint("Tangent", 5, 1, 6, 1))
sketch10.addConstraint(Sketcher.Constraint("Tangent", 6, 2, 7, 2))
sketch10.addConstraint(Sketcher.Constraint("Tangent", 7, 1, 0, 1))
sketch10.addConstraint(Sketcher.Constraint("Horizontal", 0))
sketch10.addConstraint(Sketcher.Constraint("Horizontal", 2))
sketch10.addConstraint(Sketcher.Constraint("Horizontal", 4))
sketch10.addConstraint(Sketcher.Constraint("Horizontal", 6))
sketch10.addConstraint(Sketcher.Constraint("Equal", 1, 3))
sketch10.addConstraint(Sketcher.Constraint("Equal", 5, 7))
sketch10.addConstraint(Sketcher.Constraint("Symmetric", 1, 3, 3, 3, -2))
sketch10.addConstraint(Sketcher.Constraint("Horizontal", 3, 3, 0, 2))
sketch10.addConstraint(Sketcher.Constraint("Horizontal", 0, 2, 1, 1))
sketch10.addConstraint(Sketcher.Constraint("Equal", 0, 4))
sketch10.addConstraint(Sketcher.Constraint("DistanceX", 6, 1, 6, 2, Q("1 in")))
sketch10.addConstraint(Sketcher.Constraint("DistanceX", 2, 2, 2, 1, Q("0.2 in")))
sketch10.addConstraint(Sketcher.Constraint("Radius", 1, Q("0.125 in")))
sketch10.addConstraint(Sketcher.Constraint("Radius", 5, Q("0.225 in")))
sketch10.addConstraint(Sketcher.Constraint("DistanceY", 1, 3, -1, 1, Q("0.8 in")))
pocket8 = doc.addObject("PartDesign::Pocket", "Pocket007")
body.addObject(pocket8)
pocket8.Profile = sketch10
pocket8.Length = 10
pocket8.Reversed = True
doc.recompute()

fillet3 = doc.addObject("PartDesign::Fillet", "Fillet002")
body.addObject(fillet3)
fillet3.Base = (pocket8, edges_at(pocket8, [
    (39.31, -17.145, 2.699),
    (27.88, -17.145, 2.699),
    (-27.88, -17.145, 2.699),
    (-39.31, -17.145, 2.699),
    (17.82, -17.145, 2.699),
    (-17.82, -17.145, 2.699),
    (-8.89, -20.32, 2.699),
    (-2.54, -20.32, 2.699),
    (2.54, -20.32, 2.699),
    (8.89, -20.32, 2.699),
]))
fillet3.Radius = Q("0.1 in")

doc.recompute()
